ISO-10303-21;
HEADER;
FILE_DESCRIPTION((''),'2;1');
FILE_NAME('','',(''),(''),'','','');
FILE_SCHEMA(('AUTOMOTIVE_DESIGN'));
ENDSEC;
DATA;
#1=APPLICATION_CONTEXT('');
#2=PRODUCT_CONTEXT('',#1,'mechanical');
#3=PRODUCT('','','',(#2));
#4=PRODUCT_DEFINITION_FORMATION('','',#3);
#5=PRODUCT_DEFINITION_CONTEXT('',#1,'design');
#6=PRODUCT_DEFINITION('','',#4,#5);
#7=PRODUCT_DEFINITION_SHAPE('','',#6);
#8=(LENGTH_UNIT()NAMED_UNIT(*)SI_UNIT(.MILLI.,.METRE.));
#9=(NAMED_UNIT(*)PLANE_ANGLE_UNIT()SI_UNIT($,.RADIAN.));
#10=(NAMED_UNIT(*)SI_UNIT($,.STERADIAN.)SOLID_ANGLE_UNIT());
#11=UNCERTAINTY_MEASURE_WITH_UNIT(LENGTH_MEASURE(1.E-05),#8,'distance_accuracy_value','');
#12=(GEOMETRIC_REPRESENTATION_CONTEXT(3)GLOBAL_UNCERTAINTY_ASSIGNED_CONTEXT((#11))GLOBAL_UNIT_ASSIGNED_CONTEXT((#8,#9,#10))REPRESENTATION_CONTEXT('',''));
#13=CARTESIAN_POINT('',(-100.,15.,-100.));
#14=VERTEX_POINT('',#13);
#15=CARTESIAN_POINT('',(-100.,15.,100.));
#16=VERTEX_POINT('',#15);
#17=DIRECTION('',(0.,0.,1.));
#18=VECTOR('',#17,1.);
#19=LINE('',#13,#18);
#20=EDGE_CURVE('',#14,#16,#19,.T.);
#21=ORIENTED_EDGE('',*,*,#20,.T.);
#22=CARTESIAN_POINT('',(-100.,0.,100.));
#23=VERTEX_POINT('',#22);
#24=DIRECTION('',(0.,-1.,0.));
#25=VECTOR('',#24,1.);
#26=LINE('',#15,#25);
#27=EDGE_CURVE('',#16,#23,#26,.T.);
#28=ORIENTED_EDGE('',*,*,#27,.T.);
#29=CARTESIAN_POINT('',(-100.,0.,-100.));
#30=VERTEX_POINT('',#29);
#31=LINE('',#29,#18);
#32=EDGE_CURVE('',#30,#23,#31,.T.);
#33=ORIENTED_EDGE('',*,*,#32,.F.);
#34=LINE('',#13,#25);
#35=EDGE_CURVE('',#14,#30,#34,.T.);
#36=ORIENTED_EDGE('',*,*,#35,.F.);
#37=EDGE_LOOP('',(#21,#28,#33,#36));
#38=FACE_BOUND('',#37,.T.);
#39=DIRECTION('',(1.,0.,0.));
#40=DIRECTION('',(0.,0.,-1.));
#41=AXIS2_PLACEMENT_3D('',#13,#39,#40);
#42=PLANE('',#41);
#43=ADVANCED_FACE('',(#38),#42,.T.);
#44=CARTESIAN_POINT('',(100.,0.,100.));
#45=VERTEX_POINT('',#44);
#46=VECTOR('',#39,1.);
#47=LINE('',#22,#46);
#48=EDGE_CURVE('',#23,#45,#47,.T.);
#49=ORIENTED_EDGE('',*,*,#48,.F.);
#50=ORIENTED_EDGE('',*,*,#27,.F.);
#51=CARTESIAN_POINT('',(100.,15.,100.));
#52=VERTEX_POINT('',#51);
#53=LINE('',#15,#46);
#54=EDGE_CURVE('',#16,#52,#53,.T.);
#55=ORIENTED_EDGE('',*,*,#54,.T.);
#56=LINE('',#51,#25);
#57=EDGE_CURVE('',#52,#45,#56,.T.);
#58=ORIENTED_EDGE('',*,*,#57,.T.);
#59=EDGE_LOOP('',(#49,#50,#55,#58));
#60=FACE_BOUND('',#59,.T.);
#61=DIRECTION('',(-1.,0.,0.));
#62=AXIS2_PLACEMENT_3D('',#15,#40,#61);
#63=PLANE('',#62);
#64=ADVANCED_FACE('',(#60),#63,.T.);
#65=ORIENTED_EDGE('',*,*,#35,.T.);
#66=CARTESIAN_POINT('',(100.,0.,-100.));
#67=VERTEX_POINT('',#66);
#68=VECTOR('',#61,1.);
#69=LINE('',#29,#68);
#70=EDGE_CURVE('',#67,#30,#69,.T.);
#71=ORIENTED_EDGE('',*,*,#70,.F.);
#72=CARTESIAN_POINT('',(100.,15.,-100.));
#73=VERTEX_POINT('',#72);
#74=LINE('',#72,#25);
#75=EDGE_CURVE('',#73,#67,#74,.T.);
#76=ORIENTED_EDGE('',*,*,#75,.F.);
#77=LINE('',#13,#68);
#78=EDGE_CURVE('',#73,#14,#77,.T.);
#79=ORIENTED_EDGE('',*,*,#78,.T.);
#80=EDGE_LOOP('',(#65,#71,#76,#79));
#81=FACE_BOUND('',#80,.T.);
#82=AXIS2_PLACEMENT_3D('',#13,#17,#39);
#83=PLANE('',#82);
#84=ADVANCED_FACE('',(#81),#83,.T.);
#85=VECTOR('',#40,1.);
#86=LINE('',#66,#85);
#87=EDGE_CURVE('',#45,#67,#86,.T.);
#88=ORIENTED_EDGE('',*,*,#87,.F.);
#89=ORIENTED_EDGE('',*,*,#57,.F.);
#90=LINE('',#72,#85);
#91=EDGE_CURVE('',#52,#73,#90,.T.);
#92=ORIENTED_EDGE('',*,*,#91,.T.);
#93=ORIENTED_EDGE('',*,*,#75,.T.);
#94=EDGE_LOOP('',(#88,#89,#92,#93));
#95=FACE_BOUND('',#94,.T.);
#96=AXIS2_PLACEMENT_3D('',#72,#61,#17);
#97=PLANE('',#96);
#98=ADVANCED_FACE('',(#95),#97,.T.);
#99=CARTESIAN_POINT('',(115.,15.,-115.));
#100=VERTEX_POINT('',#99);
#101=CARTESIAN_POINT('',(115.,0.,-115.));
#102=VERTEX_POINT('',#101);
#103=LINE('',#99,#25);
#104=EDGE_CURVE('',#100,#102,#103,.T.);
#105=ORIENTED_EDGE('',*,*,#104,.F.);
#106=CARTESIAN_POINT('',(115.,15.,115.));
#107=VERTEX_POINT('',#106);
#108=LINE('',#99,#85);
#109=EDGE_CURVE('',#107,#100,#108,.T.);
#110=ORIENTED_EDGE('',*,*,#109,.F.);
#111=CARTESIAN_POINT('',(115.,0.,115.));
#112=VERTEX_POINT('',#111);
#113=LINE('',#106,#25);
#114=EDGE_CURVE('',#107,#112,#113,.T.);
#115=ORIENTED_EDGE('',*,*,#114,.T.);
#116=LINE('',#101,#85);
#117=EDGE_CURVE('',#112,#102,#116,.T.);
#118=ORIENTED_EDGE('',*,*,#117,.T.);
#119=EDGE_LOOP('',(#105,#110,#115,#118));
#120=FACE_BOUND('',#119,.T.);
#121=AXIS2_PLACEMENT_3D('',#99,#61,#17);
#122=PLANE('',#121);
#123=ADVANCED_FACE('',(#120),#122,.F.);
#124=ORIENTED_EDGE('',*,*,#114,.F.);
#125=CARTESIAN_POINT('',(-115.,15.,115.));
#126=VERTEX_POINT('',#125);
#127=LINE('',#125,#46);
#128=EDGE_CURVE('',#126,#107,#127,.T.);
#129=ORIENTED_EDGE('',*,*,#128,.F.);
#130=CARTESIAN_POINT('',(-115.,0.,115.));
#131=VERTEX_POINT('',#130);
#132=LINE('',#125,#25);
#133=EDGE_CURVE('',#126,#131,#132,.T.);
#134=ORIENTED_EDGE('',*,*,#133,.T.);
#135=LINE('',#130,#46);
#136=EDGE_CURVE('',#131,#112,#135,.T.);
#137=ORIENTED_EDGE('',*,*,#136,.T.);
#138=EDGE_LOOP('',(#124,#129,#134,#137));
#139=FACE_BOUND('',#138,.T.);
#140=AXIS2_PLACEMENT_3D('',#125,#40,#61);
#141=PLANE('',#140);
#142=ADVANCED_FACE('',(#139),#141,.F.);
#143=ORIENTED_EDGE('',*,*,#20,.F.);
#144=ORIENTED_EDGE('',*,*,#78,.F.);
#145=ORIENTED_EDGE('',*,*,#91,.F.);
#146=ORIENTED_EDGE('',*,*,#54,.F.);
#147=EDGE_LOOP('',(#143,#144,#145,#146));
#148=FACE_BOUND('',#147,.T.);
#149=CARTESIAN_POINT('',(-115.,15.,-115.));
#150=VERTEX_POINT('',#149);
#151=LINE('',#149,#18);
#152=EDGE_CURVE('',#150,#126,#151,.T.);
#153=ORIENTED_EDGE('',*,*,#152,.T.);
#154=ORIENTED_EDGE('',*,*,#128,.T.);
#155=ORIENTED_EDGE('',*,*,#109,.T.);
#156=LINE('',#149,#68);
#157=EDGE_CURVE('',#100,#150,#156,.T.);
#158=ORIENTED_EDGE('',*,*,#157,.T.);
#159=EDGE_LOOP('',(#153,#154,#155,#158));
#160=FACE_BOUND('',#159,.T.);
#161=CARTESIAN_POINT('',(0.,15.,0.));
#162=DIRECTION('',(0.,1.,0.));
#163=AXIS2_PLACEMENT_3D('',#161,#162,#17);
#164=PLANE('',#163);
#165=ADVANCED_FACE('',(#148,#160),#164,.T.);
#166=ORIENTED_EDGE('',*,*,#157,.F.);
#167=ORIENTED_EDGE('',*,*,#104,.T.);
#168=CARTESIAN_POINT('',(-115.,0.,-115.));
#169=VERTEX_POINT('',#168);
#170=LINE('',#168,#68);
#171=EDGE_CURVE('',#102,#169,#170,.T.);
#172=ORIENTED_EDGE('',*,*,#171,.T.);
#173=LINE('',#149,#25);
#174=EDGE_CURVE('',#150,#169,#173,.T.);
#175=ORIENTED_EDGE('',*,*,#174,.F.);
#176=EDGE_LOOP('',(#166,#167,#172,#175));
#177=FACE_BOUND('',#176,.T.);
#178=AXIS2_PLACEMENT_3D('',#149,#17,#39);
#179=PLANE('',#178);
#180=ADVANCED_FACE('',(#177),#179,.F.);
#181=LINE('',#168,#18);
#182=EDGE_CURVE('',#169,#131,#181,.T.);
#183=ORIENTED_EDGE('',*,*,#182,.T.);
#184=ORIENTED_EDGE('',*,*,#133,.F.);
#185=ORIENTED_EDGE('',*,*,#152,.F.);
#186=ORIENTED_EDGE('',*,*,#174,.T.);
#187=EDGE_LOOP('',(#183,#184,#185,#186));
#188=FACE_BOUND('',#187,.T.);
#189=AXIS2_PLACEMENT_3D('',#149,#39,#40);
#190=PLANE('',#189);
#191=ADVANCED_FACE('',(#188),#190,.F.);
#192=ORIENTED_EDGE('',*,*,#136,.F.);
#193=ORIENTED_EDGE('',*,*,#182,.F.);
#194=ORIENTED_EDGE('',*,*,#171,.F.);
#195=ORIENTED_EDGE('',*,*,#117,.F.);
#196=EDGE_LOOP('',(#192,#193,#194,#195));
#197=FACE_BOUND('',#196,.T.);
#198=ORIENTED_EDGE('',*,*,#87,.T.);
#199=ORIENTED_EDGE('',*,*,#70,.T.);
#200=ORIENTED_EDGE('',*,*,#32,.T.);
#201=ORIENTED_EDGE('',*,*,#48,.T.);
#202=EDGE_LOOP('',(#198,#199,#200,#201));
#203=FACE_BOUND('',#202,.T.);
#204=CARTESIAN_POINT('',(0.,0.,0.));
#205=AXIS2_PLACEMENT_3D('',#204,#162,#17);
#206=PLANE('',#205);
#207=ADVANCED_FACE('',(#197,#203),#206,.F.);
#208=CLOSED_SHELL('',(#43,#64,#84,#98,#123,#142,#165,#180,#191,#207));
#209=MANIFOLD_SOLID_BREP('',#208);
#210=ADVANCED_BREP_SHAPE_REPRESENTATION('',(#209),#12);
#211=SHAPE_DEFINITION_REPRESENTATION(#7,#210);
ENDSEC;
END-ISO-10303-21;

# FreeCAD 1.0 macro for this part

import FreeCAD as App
import Part
import Sketcher

V = App.Vector

doc = App.newDocument("Part")
body = doc.addObject("PartDesign::Body", "Body")

sketch1 = body.newObject("Sketcher::SketchObject", "Sketch")
sketch1.AttachmentSupport = (doc.getObject("XZ_Plane"), [""])
sketch1.MapMode = "FlatFace"
sketch1.addGeometry([
    Part.LineSegment(V(-115, -115, 0), V(-115, 115, 0)),
    Part.LineSegment(V(-115, 115, 0), V(115, 115, 0)),
    Part.LineSegment(V(115, 115, 0), V(115, -115, 0)),
    Part.LineSegment(V(115, -115, 0), V(-115, -115, 0)),
    Part.LineSegment(V(100, 100, 0), V(-100, 100, 0)),
    Part.LineSegment(V(-100, 100, 0), V(-100, -100, 0)),
    Part.LineSegment(V(-100, -100, 0), V(100, -100, 0)),
    Part.LineSegment(V(100, -100, 0), V(100, 100, 0)),
], False)
sketch1.addConstraint([
    Sketcher.Constraint("Coincident", 0, 2, 1, 1),
    Sketcher.Constraint("Coincident", 1, 2, 2, 1),
    Sketcher.Constraint("Coincident", 2, 2, 3, 1),
    Sketcher.Constraint("Coincident", 3, 2, 0, 1),
    Sketcher.Constraint("Coincident", 4, 2, 5, 1),
    Sketcher.Constraint("Coincident", 5, 2, 6, 1),
    Sketcher.Constraint("Coincident", 6, 2, 7, 1),
    Sketcher.Constraint("Coincident", 7, 2, 4, 1),
    Sketcher.Constraint("Vertical", 0),
    Sketcher.Constraint("Horizontal", 1),
    Sketcher.Constraint("Vertical", 2),
    Sketcher.Constraint("Horizontal", 3),
    Sketcher.Constraint("Horizontal", 4),
    Sketcher.Constraint("Vertical", 5),
    Sketcher.Constraint("Horizontal", 6),
    Sketcher.Constraint("Vertical", 7),
    Sketcher.Constraint("Symmetric", 0, 2, 2, 2, -1, 1),
    Sketcher.Constraint("Symmetric", 4, 2, 6, 2, -1, 1),
    Sketcher.Constraint("Equal", 3, 0),
    Sketcher.Constraint("Equal", 6, 5),
    Sketcher.Constraint("DistanceX", 1, 1, 1, 2, 230.0),
    Sketcher.Constraint("DistanceX", 4, 2, 4, 1, 200.0),
])
pad1 = body.newObject("PartDesign::Pad", "Pad")
pad1.Profile = sketch1
pad1.Length = 15
pad1.Reversed = True

doc.recompute()
